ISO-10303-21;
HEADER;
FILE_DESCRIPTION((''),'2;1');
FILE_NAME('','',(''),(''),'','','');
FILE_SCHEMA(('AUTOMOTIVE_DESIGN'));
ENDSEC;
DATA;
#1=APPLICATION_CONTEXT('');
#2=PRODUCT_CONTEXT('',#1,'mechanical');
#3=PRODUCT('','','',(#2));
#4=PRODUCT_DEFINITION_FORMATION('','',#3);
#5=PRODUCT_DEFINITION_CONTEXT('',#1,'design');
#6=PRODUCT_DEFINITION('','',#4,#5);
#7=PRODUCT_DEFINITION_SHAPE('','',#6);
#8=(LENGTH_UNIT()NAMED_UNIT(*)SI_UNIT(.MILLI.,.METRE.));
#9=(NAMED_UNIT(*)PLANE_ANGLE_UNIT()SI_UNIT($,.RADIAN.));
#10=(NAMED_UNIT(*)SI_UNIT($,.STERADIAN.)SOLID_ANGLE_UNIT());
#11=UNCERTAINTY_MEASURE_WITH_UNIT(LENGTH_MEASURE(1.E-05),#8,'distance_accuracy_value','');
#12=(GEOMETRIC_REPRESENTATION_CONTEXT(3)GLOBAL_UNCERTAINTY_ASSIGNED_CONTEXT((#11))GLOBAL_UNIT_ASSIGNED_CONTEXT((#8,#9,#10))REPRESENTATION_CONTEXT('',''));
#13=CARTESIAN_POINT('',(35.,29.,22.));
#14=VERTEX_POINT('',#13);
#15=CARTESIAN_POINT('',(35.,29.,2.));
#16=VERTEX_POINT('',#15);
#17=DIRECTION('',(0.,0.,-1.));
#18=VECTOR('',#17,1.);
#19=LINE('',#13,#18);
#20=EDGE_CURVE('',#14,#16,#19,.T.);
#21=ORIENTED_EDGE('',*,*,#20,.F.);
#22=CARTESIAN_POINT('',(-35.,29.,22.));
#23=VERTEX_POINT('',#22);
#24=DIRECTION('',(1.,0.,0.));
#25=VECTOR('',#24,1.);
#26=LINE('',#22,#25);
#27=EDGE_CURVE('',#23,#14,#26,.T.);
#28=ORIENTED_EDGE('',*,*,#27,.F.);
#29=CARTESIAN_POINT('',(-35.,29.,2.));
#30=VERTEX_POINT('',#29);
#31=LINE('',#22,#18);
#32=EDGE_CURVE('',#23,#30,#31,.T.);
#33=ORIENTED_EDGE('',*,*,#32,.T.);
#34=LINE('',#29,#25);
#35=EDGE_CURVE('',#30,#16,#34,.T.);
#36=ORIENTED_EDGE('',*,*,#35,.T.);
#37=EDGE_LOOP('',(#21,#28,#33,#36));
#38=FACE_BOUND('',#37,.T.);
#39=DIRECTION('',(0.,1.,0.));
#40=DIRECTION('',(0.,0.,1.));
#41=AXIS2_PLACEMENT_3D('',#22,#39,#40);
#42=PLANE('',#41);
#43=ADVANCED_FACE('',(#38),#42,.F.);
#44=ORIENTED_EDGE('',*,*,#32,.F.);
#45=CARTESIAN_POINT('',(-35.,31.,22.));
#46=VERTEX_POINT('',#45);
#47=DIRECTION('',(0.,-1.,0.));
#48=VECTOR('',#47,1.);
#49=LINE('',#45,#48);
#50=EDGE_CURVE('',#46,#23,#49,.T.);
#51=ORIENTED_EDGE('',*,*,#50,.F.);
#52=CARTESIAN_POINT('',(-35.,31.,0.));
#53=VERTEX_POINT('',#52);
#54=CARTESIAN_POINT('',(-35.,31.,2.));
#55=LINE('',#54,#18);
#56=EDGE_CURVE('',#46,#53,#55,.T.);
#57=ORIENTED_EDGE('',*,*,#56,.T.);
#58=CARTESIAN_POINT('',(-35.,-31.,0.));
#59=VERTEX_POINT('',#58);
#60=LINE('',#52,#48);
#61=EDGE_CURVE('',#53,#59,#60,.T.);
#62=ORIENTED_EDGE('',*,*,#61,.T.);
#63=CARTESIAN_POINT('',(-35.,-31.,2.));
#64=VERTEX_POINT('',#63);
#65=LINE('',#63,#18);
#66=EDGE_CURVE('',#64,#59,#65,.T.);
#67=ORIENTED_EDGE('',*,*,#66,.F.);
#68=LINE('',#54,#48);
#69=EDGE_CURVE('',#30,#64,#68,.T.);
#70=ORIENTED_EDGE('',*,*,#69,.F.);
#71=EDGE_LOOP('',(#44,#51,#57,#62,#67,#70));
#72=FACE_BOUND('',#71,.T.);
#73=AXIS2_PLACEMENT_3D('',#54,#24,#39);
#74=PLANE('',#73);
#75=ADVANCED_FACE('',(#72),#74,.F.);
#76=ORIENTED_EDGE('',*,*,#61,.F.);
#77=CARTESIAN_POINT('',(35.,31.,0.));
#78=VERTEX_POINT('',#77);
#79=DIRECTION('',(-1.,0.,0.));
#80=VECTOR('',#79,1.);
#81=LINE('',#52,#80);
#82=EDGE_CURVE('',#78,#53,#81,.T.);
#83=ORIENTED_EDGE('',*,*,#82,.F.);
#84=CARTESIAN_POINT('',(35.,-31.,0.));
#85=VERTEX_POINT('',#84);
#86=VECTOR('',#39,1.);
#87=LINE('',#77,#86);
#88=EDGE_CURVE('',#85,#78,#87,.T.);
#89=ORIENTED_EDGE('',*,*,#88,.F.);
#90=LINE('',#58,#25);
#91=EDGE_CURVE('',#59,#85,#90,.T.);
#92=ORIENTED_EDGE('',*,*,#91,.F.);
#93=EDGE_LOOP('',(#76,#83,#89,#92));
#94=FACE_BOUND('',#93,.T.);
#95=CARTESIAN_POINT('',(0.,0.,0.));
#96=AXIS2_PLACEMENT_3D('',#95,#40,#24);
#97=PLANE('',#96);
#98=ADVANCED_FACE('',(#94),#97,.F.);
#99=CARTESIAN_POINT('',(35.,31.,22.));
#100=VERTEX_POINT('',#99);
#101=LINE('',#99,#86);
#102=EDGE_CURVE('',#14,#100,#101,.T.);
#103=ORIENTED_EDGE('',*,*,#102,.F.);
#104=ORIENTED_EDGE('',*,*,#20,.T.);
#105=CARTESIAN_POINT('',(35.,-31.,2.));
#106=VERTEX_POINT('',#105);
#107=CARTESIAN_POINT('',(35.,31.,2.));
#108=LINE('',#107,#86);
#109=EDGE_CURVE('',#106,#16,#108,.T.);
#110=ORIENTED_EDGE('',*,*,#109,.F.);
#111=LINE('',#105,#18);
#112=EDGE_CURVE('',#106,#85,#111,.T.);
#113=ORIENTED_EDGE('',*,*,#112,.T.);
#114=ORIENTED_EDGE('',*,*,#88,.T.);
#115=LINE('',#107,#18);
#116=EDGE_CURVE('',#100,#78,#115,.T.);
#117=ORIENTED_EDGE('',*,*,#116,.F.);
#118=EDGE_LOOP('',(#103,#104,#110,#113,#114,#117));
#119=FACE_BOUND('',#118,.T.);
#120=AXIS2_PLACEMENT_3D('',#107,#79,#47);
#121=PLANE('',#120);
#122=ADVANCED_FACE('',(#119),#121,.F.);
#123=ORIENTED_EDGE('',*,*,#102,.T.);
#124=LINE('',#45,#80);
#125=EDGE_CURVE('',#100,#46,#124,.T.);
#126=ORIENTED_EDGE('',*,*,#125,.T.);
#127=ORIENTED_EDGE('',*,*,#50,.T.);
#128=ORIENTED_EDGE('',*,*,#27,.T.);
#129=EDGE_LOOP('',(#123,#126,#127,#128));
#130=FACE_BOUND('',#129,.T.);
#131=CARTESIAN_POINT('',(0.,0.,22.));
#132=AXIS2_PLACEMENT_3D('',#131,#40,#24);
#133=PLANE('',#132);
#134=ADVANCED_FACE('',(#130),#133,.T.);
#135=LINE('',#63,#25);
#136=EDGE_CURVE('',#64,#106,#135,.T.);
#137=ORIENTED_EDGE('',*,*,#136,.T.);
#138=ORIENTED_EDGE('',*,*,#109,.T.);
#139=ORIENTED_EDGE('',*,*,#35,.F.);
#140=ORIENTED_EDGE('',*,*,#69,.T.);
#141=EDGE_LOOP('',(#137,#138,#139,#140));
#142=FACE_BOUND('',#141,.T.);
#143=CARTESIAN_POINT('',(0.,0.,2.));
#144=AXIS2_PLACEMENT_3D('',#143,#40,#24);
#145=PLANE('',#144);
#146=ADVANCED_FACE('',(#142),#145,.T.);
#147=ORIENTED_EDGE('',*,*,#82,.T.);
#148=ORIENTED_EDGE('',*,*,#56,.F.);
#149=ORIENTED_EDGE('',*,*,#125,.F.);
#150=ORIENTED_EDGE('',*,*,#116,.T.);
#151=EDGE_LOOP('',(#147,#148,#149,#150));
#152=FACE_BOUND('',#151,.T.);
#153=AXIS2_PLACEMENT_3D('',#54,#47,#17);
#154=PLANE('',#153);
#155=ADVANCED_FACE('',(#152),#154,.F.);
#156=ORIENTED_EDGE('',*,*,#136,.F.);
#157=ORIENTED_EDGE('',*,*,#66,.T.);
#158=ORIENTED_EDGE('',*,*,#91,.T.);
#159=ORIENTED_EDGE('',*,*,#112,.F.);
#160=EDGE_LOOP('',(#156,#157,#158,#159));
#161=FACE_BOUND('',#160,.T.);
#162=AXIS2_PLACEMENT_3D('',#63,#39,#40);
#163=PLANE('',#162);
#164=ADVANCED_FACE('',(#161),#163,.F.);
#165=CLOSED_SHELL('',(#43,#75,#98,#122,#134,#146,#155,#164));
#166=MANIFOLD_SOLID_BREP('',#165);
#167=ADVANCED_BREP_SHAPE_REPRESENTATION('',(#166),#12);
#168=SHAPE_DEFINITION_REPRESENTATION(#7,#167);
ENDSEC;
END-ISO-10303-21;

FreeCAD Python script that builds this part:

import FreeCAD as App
import Part
import Sketcher
from FreeCAD import Vector

doc = App.newDocument("Part")
body = doc.addObject("PartDesign::Body", "Body")

sketch1 = doc.addObject("Sketcher::SketchObject", "Sketch")
body.addObject(sketch1)
sketch1.AttachmentSupport = (doc.XY_Plane, [""])
sketch1.MapMode = "FlatFace"
sketch1.addGeometry([
    Part.LineSegment(Vector(-35, 31, 0), Vector(-35, -31, 0)),
    Part.LineSegment(Vector(-35, -31, 0), Vector(35, -31, 0)),
    Part.LineSegment(Vector(35, -31, 0), Vector(35, 31, 0)),
    Part.LineSegment(Vector(35, 31, 0), Vector(-35, 31, 0)),
], False)
sketch1.addConstraint([
    Sketcher.Constraint("Coincident", 0, 2, 1, 1),
    Sketcher.Constraint("Coincident", 1, 2, 2, 1),
    Sketcher.Constraint("Coincident", 2, 2, 3, 1),
    Sketcher.Constraint("Coincident", 3, 2, 0, 1),
    Sketcher.Constraint("Vertical", 0),
    Sketcher.Constraint("Horizontal", 1),
    Sketcher.Constraint("Vertical", 2),
    Sketcher.Constraint("Horizontal", 3),
    Sketcher.Constraint("Symmetric", 0, 2, 2, 2, -1, 1),
    Sketcher.Constraint("DistanceX", 1, 1, 1, 2, 70.0),
    Sketcher.Constraint("DistanceY", 0, 2, 0, 1, 62.0),
])
pad1 = doc.addObject("PartDesign::Pad", "Pad")
body.addObject(pad1)
pad1.Profile = sketch1
pad1.Length = 2

sketch2 = doc.addObject("Sketcher::SketchObject", "Sketch001")
body.addObject(sketch2)
sketch2.AttachmentSupport = (doc.XY_Plane, [""])
sketch2.MapMode = "FlatFace"
sketch2.AttachmentOffset = App.Placement(Vector(0, 0, 2), App.Rotation())
sketch2.addGeometry([
    Part.LineSegment(Vector(-35, 31, 0), Vector(-35, 29, 0)),
    Part.LineSegment(Vector(-35, 29, 0), Vector(35, 29, 0)),
    Part.LineSegment(Vector(35, 29, 0), Vector(35, 31, 0)),
    Part.LineSegment(Vector(35, 31, 0), Vector(-35, 31, 0)),
], False)
sketch2.addConstraint([
    Sketcher.Constraint("Coincident", 0, 2, 1, 1),
    Sketcher.Constraint("Coincident", 1, 2, 2, 1),
    Sketcher.Constraint("Coincident", 2, 2, 3, 1),
    Sketcher.Constraint("Coincident", 3, 2, 0, 1),
    Sketcher.Constraint("Vertical", 0),
    Sketcher.Constraint("Horizontal", 1),
    Sketcher.Constraint("Vertical", 2),
    Sketcher.Constraint("Horizontal", 3),
    Sketcher.Constraint("DistanceX", 1, 1, 1, 2, 70.0),
    Sketcher.Constraint("DistanceY", 0, 2, 0, 1, 2.0),
    Sketcher.Constraint("DistanceX", 0, 2, -1, 1, 35.0),
    Sketcher.Constraint("DistanceY", -1, 1, 0, 2, 29.0),
])
pad2 = doc.addObject("PartDesign::Pad", "Pad001")
body.addObject(pad2)
pad2.Profile = sketch2
pad2.Length = 20

doc.recompute()
